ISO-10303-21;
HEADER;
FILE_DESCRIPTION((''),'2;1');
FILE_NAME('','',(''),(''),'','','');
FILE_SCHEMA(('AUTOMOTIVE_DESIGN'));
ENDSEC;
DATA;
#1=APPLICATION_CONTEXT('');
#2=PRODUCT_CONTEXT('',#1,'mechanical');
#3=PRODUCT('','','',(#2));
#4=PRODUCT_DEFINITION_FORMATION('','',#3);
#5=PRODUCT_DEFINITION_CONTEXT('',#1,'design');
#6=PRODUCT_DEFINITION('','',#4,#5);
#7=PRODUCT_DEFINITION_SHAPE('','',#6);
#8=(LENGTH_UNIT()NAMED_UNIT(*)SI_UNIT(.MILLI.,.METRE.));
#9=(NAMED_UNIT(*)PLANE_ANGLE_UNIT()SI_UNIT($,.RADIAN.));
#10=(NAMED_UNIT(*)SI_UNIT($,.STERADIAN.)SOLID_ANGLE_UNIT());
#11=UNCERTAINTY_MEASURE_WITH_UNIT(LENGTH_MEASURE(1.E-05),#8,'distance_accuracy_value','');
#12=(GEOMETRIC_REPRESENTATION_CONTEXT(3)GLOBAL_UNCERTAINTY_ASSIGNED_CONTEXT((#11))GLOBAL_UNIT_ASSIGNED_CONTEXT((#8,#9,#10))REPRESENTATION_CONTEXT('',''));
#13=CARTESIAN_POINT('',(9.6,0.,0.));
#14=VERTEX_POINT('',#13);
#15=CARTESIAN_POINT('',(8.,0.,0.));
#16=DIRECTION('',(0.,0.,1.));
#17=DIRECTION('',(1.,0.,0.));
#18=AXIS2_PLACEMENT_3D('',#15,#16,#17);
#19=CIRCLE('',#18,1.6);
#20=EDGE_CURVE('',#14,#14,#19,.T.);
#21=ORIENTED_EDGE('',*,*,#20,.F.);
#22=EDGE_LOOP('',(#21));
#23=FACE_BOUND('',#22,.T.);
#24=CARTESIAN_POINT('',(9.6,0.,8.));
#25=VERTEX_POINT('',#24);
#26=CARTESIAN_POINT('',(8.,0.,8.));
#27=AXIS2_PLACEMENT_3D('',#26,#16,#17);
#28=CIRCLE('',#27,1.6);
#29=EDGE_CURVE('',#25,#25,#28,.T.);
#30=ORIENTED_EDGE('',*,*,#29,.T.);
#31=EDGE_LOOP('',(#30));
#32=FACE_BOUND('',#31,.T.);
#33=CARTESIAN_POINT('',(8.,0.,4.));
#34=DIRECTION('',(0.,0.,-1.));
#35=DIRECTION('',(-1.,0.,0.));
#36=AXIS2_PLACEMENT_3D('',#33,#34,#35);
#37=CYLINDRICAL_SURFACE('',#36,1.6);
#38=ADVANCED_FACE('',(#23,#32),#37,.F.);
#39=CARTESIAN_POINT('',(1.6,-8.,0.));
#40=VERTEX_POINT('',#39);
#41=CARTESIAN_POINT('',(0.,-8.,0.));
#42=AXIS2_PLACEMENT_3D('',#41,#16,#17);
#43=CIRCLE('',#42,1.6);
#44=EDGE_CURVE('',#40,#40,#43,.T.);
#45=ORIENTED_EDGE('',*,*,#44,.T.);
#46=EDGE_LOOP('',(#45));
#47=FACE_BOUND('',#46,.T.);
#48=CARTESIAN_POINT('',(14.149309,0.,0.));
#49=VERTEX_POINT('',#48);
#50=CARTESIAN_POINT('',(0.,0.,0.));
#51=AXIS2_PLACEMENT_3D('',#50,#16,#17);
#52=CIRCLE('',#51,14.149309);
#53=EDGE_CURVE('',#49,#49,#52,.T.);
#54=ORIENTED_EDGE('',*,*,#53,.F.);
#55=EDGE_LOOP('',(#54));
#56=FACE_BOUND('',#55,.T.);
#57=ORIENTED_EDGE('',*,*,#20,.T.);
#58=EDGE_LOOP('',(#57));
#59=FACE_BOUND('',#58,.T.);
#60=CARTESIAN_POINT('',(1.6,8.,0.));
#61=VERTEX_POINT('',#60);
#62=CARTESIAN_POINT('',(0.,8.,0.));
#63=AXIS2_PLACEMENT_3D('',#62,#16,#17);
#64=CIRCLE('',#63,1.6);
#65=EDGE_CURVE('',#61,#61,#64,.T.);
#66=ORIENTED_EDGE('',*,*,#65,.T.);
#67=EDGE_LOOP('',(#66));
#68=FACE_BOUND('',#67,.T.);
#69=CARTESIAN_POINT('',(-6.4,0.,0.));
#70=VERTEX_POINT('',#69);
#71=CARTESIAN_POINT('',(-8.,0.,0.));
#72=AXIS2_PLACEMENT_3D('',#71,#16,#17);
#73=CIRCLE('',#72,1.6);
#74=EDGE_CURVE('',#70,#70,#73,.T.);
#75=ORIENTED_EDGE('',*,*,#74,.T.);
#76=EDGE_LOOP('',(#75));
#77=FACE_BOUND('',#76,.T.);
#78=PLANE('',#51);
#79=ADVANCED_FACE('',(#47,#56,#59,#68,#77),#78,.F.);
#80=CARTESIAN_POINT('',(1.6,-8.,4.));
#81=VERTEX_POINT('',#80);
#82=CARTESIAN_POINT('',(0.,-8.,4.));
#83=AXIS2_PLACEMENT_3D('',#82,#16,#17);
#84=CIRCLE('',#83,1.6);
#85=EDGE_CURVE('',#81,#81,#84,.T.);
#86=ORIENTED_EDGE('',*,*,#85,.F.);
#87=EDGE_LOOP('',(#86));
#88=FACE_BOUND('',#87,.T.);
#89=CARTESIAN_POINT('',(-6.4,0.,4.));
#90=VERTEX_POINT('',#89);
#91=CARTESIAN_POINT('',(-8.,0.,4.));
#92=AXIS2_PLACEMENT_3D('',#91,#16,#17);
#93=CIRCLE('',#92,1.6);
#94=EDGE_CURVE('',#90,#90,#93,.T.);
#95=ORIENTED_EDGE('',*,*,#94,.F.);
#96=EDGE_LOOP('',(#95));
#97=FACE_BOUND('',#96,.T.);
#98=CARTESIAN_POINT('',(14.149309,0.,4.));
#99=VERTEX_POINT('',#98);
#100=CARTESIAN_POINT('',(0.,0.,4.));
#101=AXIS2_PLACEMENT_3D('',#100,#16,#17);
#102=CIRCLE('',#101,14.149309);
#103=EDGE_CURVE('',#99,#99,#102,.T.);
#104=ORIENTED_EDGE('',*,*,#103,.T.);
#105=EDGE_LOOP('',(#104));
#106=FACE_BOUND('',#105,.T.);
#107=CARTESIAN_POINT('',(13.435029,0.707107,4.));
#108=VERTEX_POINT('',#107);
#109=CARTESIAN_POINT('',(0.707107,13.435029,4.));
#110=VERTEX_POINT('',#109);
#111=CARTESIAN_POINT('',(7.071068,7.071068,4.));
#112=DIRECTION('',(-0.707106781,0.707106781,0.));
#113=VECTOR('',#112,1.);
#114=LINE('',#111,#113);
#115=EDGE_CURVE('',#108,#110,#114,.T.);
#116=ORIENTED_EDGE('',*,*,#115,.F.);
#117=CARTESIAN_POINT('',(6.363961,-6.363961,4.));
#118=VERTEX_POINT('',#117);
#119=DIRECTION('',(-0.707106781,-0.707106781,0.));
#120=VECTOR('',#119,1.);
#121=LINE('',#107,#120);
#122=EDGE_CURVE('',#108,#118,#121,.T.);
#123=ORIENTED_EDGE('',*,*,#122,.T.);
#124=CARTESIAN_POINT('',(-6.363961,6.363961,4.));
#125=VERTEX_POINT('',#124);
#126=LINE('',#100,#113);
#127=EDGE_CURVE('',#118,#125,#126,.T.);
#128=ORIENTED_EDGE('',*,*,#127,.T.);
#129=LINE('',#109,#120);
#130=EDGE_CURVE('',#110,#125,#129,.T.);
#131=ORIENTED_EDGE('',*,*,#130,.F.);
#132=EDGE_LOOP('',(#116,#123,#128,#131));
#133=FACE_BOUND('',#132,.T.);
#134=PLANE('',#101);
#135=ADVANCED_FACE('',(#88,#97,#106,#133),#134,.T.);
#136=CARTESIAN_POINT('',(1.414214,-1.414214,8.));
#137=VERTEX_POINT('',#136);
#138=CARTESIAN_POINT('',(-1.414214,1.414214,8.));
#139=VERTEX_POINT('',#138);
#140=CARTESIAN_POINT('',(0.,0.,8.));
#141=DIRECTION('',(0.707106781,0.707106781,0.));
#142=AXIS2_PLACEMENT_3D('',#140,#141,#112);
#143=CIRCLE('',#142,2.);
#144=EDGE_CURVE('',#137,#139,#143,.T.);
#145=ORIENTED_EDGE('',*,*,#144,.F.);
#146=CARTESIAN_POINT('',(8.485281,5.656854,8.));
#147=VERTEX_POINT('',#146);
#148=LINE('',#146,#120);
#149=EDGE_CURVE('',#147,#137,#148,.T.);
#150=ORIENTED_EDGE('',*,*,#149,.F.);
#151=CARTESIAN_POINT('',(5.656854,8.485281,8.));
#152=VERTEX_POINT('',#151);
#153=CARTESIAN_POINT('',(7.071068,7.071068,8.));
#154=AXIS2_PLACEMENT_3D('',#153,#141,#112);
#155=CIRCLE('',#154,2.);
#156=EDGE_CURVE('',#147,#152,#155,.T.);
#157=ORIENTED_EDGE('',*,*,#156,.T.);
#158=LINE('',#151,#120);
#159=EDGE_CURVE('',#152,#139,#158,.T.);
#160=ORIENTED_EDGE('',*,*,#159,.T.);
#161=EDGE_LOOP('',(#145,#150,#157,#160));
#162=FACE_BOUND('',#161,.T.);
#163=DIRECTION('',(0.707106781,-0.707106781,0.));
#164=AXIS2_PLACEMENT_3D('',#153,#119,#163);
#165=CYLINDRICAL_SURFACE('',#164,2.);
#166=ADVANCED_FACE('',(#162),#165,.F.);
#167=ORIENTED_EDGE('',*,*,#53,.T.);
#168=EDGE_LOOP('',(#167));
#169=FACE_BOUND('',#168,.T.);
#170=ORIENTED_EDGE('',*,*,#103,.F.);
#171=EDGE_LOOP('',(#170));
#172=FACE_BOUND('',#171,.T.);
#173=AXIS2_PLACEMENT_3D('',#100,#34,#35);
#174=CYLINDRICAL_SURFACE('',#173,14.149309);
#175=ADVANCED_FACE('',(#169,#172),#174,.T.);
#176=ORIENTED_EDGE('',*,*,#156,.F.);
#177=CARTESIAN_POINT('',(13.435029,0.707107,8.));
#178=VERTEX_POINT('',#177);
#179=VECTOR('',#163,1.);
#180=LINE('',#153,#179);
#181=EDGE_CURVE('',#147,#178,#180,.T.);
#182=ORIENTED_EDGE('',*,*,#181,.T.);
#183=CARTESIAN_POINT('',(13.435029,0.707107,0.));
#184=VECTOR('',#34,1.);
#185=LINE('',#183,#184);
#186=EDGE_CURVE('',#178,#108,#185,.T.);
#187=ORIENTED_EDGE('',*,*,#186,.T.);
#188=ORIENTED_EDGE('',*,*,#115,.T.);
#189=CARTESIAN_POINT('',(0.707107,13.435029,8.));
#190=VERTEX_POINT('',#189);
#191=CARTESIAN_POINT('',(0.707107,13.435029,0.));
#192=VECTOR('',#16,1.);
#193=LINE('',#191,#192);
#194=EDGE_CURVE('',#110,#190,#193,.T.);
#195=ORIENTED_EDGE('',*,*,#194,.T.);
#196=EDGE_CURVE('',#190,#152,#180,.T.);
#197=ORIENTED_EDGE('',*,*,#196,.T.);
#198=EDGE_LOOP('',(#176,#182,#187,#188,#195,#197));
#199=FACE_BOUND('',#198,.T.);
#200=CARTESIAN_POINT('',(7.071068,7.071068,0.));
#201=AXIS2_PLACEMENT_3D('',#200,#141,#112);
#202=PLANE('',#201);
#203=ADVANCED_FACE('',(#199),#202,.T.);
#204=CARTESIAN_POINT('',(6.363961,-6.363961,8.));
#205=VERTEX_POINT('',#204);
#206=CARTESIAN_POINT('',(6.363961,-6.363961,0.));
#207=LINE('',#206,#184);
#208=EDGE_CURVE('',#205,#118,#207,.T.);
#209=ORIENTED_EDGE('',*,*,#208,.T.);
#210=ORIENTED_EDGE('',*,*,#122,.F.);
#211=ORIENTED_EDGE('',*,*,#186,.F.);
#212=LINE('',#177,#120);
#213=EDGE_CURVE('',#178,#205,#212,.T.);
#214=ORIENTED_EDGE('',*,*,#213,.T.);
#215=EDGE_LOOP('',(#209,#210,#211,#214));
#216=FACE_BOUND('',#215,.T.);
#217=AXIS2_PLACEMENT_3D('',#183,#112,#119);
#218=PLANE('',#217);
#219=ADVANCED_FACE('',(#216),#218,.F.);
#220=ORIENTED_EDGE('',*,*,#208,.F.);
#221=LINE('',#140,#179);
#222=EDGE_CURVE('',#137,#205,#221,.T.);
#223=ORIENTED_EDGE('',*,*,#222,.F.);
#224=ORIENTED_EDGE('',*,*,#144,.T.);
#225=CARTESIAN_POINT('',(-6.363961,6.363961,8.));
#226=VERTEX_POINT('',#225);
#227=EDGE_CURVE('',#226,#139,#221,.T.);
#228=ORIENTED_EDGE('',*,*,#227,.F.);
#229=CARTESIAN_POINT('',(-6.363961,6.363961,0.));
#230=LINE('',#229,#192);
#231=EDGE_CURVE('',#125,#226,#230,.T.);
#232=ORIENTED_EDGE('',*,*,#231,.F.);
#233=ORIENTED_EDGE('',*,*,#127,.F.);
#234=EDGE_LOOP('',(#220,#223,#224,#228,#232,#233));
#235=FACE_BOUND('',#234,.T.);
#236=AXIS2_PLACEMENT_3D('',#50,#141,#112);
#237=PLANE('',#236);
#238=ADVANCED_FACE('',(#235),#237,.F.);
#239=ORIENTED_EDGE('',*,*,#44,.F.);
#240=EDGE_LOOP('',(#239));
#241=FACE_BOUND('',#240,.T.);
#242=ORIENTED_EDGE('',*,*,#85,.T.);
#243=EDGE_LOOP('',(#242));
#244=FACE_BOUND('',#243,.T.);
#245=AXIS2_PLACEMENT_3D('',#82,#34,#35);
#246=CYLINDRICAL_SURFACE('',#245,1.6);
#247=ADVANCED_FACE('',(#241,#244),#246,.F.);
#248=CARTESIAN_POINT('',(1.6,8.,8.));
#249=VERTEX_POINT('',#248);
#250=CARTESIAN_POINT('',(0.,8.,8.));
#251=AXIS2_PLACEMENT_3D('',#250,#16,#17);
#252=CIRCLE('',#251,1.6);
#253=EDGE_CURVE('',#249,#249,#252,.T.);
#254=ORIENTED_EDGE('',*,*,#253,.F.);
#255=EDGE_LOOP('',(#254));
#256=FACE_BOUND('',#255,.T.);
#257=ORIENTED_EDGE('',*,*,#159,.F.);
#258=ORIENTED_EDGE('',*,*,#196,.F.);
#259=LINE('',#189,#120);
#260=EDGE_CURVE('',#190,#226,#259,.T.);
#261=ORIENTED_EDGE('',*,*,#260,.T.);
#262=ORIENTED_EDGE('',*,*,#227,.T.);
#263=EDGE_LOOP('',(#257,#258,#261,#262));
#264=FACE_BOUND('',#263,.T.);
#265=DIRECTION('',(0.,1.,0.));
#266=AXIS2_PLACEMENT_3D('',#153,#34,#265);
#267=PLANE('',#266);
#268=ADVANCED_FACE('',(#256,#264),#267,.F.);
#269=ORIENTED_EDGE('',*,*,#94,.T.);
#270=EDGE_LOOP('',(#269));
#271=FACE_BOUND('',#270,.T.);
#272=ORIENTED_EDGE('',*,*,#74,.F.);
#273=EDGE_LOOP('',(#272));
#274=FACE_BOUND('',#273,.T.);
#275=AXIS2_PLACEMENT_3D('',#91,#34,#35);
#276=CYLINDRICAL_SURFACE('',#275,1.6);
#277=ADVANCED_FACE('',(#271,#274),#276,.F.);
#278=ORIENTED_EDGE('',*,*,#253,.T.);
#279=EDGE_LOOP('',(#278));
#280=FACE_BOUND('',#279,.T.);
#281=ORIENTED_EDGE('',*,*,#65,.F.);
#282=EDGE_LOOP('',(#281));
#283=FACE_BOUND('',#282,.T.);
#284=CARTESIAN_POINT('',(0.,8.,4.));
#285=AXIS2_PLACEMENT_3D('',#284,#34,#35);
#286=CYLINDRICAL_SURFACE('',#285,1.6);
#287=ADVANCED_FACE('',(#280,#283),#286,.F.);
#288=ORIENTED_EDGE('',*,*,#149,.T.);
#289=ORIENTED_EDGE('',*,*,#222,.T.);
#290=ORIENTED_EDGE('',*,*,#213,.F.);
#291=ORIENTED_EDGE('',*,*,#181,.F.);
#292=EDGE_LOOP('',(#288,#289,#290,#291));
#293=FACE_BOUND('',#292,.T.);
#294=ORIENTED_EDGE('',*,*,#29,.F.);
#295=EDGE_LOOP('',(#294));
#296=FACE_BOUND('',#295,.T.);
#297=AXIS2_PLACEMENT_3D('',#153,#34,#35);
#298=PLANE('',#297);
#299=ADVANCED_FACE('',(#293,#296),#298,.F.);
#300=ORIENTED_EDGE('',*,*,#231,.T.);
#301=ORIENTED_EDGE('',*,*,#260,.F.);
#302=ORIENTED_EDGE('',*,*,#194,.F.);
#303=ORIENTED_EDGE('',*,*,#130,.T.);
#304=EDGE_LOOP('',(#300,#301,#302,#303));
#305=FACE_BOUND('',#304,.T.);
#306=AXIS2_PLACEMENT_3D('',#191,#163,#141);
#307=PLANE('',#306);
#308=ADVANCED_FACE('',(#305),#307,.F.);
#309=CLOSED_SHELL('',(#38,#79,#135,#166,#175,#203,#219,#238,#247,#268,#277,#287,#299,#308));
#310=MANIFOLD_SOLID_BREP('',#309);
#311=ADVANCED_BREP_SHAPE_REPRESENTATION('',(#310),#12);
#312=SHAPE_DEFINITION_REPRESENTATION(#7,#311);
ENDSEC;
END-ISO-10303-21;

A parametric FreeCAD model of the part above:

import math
import FreeCAD as App
import Part
import Sketcher

V = App.Vector

doc = App.newDocument("Part")
params = doc.addObject("Spreadsheet::Sheet", "Params")
for row, (alias, value) in enumerate([
    ("sketch1_diameter", "3.2 mm"),
    ("pad1_length", "4 mm"),
    ("sketch2_radius", "2 mm"),
    ("sketch2_width", "4 mm"),
    ("sketch2_height", "7 mm"),
    ("pad2_length", "10 mm"),
    ("sketch3_diameter", "3.2 mm"),
    ("pocket1_length", "10 mm"),
], start=1):
    params.set(f"A{row}", alias)
    params.set(f"B{row}", "=" + value)
    params.setAlias(f"B{row}", alias)

body = doc.addObject("PartDesign::Body", "Body")

# Sketch on XY plane
sketch1 = body.newObject("Sketcher::SketchObject", "Sketch")
sketch1.AttachmentSupport = (doc.getObject("XY_Plane"), [""])
sketch1.MapMode = "FlatFace"
sketch1.addGeometry([
    Part.Circle(V(0, 0, 0), V(0, 0, 1), 14.149309),  # 0
    Part.Circle(V(0, -8, 0), V(0, 0, 1), 1.6),  # 1
    Part.Circle(V(-8, 0, 0), V(0, 0, 1), 1.6),  # 2
    Part.Circle(V(8, 0, 0), V(0, 0, 1), 1.6),  # 3
    Part.Circle(V(0, 8, 0), V(0, 0, 1), 1.6),  # 4
], False)
sketch1.addConstraint([
    Sketcher.Constraint("Coincident", 0, 3, -1, 1),
    Sketcher.Constraint("Equal", 1, 2),
    Sketcher.Constraint("Equal", 2, 3),
    Sketcher.Constraint("Equal", 3, 4),
    Sketcher.Constraint("Symmetric", 2, 3, 3, 3, -1, 1),
    Sketcher.Constraint("Symmetric", 1, 3, 4, 3, -1, 1),
    Sketcher.Constraint("PointOnObject", 1, 3, -2),
    Sketcher.Constraint("PointOnObject", 2, 3, -1),
    Sketcher.Constraint("Diameter", 1, 3.2),
    Sketcher.Constraint("DistanceY", 1, 3, -1, 1, 8.0),
    Sketcher.Constraint("DistanceX", 2, 3, -1, 1, 8.0),
    Sketcher.Constraint("Diameter", 0, 28.298617),
])
sketch1.setExpression("Constraints[8]", "Params.sketch1_diameter")
pad1 = body.newObject("PartDesign::Pad", "Pad")
pad1.Profile = sketch1
pad1.setExpression("Length", "Params.pad1_length")

# Sketch on an angled plane
sketch2 = body.newObject("Sketcher::SketchObject", "Sketch001")
sketch2.Placement = App.Placement(V(0, 0, 0), App.Rotation(V(0, 0, -1), V(-0.707106781, 0.707106781, 0), V(0.707106781, 0.707106781, 0), "ZXY"))
sketch2.addGeometry([
    Part.LineSegment(V(-8, 9, 0), V(-8, 2, 0)),  # 0
    Part.ArcOfCircle(Part.Circle(V(-8, 0, 0), V(0, 0, 1), 2), math.radians(0), math.radians(90)),  # 1
    Part.ArcOfCircle(Part.Circle(V(-8, 0, 0), V(0, 0, 1), 2), math.radians(-90), math.radians(0)),  # 2
    Part.LineSegment(V(-8, -2, 0), V(-8, -9, 0)),  # 3
    Part.LineSegment(V(-8, -9, 0), V(-4, -9, 0)),  # 4
    Part.LineSegment(V(-4, -9, 0), V(-4, 9, 0)),  # 5
    Part.LineSegment(V(-4, 9, 0), V(-8, 9, 0)),  # 6
], False)
sketch2.addConstraint([
    Sketcher.Constraint("Coincident", 0, 2, 1, 2),
    Sketcher.Constraint("Tangent", 1, 1, 2, 2),
    Sketcher.Constraint("Coincident", 2, 1, 3, 1),
    Sketcher.Constraint("Coincident", 3, 2, 4, 1),
    Sketcher.Constraint("Coincident", 4, 2, 5, 1),
    Sketcher.Constraint("Coincident", 5, 2, 6, 1),
    Sketcher.Constraint("Coincident", 6, 2, 0, 1),
    Sketcher.Constraint("Vertical", 0),
    Sketcher.Constraint("Vertical", 3),
    Sketcher.Constraint("Horizontal", 4),
    Sketcher.Constraint("Vertical", 5),
    Sketcher.Constraint("Horizontal", 6),
    Sketcher.Constraint("Equal", 1, 2),
    Sketcher.Constraint("Symmetric", 0, 2, 2, 1, -1),
    Sketcher.Constraint("PointOnObject", 1, 1, -1),
    Sketcher.Constraint("Vertical", 2, 3, 0, 2),
    Sketcher.Constraint("Equal", 0, 3),
    Sketcher.Constraint("Radius", 1, 2.0),
    Sketcher.Constraint("DistanceX", 4, 1, 4, 2, 4.0),
    Sketcher.Constraint("DistanceY", 0, 2, 0, 1, 7.0),
    Sketcher.Constraint("DistanceX", 1, 3, -1, 1, 8.0),
])
sketch2.setExpression("Constraints[17]", "Params.sketch2_radius")
sketch2.setExpression("Constraints[18]", "Params.sketch2_width")
sketch2.setExpression("Constraints[19]", "Params.sketch2_height")
pad2 = body.newObject("PartDesign::Pad", "Pad001")
pad2.Profile = sketch2
pad2.setExpression("Length", "Params.pad2_length")

# Sketch on XY plane
sketch3 = body.newObject("Sketcher::SketchObject", "Sketch002")
sketch3.AttachmentSupport = (doc.getObject("XY_Plane"), [""])
sketch3.MapMode = "FlatFace"
sketch3.AttachmentOffset = App.Placement(V(0, 0, -2), App.Rotation())
sketch3.addGeometry([
    Part.Circle(V(8, 0, 0), V(0, 0, 1), 1.6),
    Part.Circle(V(0, 8, 0), V(0, 0, 1), 1.6),
], False)
sketch3.addConstraint([
    Sketcher.Constraint("Equal", 0, 1),
    Sketcher.Constraint("PointOnObject", 0, 3, -1),
    Sketcher.Constraint("PointOnObject", 1, 3, -2),
    Sketcher.Constraint("Diameter", 0, 3.2),
    Sketcher.Constraint("DistanceX", -1, 1, 0, 3, 8.0),
    Sketcher.Constraint("DistanceY", -1, 1, 1, 3, 8.0),
])
sketch3.setExpression("Constraints[3]", "Params.sketch3_diameter")
pocket1 = body.newObject("PartDesign::Pocket", "Pocket")
pocket1.Profile = sketch3
pocket1.setExpression("Length", "Params.pocket1_length")
pocket1.Reversed = True

doc.recompute()
